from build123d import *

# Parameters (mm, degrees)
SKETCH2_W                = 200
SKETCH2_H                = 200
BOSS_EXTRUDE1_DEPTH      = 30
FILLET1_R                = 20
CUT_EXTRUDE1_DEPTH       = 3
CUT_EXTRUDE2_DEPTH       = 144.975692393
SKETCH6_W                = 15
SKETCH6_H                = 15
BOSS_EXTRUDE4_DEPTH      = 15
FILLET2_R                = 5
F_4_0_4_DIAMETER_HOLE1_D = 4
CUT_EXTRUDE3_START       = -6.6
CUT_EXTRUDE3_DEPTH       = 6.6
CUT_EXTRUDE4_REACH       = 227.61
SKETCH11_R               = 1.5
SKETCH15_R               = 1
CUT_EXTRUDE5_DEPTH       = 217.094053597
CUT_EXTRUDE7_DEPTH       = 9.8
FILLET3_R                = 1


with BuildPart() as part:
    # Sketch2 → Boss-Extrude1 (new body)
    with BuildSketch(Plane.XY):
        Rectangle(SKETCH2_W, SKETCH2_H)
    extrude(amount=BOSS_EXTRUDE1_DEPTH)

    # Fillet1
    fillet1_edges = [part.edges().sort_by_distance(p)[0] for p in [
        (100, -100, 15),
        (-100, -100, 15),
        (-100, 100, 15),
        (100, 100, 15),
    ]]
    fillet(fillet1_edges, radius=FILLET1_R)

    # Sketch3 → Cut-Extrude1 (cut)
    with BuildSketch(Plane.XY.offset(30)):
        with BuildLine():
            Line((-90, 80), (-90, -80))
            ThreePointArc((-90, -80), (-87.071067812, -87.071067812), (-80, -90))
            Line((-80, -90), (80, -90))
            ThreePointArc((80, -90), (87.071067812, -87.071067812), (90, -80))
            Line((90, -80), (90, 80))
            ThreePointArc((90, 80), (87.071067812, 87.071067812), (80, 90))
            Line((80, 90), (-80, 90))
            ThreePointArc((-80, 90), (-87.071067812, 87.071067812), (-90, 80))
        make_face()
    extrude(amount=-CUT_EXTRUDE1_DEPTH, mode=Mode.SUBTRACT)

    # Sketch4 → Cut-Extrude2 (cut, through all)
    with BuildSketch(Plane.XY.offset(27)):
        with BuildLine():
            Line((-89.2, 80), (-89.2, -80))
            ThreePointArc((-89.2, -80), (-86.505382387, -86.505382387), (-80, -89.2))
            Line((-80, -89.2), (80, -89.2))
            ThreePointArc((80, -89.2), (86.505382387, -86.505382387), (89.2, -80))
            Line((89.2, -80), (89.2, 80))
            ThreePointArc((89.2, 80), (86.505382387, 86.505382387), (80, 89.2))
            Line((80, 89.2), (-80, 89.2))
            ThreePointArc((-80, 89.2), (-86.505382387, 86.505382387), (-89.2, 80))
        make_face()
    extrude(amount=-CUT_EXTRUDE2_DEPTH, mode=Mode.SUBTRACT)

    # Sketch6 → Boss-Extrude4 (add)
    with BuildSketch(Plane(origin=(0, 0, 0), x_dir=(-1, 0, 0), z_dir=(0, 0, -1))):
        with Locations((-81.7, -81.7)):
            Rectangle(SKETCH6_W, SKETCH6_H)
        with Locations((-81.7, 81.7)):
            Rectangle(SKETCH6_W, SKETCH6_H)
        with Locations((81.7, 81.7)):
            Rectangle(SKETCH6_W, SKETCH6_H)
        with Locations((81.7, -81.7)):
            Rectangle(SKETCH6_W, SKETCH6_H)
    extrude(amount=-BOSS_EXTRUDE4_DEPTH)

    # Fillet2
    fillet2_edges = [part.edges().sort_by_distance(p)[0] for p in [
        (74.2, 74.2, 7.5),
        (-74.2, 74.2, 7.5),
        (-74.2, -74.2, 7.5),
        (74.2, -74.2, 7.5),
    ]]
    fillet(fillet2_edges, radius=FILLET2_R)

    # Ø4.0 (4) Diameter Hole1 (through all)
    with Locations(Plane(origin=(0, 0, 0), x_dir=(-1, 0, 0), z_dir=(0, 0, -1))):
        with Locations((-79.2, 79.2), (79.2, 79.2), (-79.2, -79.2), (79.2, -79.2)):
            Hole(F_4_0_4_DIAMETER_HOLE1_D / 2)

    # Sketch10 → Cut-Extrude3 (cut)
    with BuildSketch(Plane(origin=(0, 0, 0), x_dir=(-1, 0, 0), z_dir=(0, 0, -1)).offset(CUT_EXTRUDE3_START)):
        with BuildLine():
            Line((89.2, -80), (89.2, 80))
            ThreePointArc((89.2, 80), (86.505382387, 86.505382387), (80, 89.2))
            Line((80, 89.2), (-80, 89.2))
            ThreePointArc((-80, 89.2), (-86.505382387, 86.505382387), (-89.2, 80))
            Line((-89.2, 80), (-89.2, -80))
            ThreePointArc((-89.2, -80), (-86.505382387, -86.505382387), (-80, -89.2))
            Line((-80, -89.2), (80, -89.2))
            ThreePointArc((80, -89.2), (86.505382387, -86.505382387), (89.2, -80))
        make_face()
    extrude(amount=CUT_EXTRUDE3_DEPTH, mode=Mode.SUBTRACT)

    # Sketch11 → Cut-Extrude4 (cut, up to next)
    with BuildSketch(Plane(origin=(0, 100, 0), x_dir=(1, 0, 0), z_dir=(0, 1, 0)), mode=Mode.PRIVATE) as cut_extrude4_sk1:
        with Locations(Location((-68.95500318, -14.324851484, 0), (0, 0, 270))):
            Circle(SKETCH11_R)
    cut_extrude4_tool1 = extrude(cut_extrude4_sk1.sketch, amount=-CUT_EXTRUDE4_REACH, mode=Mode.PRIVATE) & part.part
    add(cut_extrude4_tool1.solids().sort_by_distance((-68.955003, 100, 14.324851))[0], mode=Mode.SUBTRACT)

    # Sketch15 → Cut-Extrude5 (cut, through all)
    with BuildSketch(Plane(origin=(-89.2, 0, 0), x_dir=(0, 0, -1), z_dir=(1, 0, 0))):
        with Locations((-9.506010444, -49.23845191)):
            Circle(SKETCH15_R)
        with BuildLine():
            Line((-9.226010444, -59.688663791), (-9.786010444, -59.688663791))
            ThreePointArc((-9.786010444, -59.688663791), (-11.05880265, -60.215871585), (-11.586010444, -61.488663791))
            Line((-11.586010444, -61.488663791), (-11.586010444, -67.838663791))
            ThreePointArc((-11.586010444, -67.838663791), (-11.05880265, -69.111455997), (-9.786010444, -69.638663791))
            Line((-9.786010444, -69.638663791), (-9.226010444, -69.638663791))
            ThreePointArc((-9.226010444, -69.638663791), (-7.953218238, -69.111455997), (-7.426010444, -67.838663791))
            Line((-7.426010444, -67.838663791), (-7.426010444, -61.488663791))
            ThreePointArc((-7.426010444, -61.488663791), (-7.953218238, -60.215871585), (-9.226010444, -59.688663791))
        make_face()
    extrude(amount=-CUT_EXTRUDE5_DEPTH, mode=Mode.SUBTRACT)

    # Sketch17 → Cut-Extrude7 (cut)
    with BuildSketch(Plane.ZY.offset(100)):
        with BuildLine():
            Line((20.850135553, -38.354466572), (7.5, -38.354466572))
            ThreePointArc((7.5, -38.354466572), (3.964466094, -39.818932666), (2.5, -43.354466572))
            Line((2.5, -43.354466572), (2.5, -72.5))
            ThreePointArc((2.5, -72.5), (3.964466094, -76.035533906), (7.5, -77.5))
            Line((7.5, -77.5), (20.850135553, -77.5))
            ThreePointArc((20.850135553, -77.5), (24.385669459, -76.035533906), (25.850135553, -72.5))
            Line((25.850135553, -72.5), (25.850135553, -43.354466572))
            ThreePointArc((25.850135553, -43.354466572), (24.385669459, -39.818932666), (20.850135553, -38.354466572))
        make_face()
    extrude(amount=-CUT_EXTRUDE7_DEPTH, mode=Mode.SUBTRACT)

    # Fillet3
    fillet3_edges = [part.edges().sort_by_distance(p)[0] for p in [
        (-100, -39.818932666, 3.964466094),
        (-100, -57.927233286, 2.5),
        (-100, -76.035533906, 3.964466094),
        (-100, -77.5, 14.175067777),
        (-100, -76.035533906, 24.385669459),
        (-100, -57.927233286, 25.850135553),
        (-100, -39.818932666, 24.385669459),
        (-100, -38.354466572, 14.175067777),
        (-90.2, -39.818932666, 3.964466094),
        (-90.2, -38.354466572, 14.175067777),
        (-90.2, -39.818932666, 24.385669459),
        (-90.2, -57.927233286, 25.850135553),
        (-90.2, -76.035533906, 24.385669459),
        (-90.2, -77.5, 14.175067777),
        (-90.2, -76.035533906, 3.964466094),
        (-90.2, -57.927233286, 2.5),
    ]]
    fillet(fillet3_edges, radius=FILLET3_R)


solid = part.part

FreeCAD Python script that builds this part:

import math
import FreeCAD as App
import Part
import Sketcher
from FreeCAD import Vector
Q = App.Units.Quantity


def edges_at(feature, points):
    """Names of the edges that pass closest to the given points."""
    edges = feature.Shape.Edges
    near = lambda p: min(range(len(edges)), key=lambda i: edges[i].distToShape(Part.Vertex(*p))[0])
    return sorted({f"Edge{near(p) + 1}" for p in points})


def add_polygon(sketch, points):
    """Adds a closed chain of lines whose ends are joined by coincident constraints."""
    first, n = sketch.GeometryCount, len(points)
    for a, b in zip(points, points[1:] + points[:1]):
        sketch.addGeometry(Part.LineSegment(App.Vector(*a, 0), App.Vector(*b, 0)), False)
    for i in range(n):
        sketch.addConstraint(Sketcher.Constraint("Coincident", first + i, 2, first + (i + 1) % n, 1))

doc = App.newDocument("Part")
body = doc.addObject("PartDesign::Body", "Body")

sketch1 = doc.addObject("Sketcher::SketchObject", "Sketch")
body.addObject(sketch1)
sketch1.AttachmentSupport = (doc.XY_Plane, [""])
sketch1.MapMode = "FlatFace"
add_polygon(sketch1, [(-100, 100), (-100, -100), (100, -100), (100, 100)])
sketch1.addConstraint([
    Sketcher.Constraint("Vertical", 0),
    Sketcher.Constraint("Horizontal", 1),
    Sketcher.Constraint("Vertical", 2),
    Sketcher.Constraint("Horizontal", 3),
    Sketcher.Constraint("Symmetric", 0, 2, 2, 2, -1, 1),
    Sketcher.Constraint("Equal", 3, 0),
    Sketcher.Constraint("DistanceX", 1, 1, 1, 2, Q("200 mm")),
])
pad1 = doc.addObject("PartDesign::Pad", "Pad")
body.addObject(pad1)
pad1.Profile = sketch1
pad1.Length = 30
doc.recompute()

fillet = doc.addObject("PartDesign::Fillet", "Fillet")
body.addObject(fillet)
fillet.Base = (pad1, edges_at(pad1, [
    (100, -100, 15),
    (-100, -100, 15),
    (-100, 100, 15),
    (100, 100, 15),
]))
fillet.Radius = 20

sketch2 = doc.addObject("Sketcher::SketchObject", "Sketch001")
body.addObject(sketch2)
sketch2.AttachmentSupport = (doc.XY_Plane, [""])
sketch2.MapMode = "FlatFace"
sketch2.AttachmentOffset = App.Placement(Vector(0, 0, 30), App.Rotation())
sketch2.addGeometry([
    Part.LineSegment(Vector(-90, 80, 0), Vector(-90, -80, 0)),
    Part.ArcOfCircle(Part.Circle(Vector(-80, -80, 0), Vector(0, 0, 1), 10), math.radians(180), math.radians(270)),
    Part.LineSegment(Vector(-80, -90, 0), Vector(80, -90, 0)),
    Part.ArcOfCircle(Part.Circle(Vector(80, -80, 0), Vector(0, 0, 1), 10), math.radians(-90), math.radians(0)),
    Part.LineSegment(Vector(90, -80, 0), Vector(90, 80, 0)),
    Part.ArcOfCircle(Part.Circle(Vector(80, 80, 0), Vector(0, 0, 1), 10), math.radians(0), math.radians(90)),
    Part.LineSegment(Vector(80, 90, 0), Vector(-80, 90, 0)),
    Part.ArcOfCircle(Part.Circle(Vector(-80, 80, 0), Vector(0, 0, 1), 10), math.radians(90), math.radians(180)),
], False)
sketch2.addConstraint([
    Sketcher.Constraint("Tangent", 0, 2, 1, 1),
    Sketcher.Constraint("Tangent", 1, 2, 2, 1),
    Sketcher.Constraint("Tangent", 2, 2, 3, 1),
    Sketcher.Constraint("Tangent", 3, 2, 4, 1),
    Sketcher.Constraint("Tangent", 4, 2, 5, 1),
    Sketcher.Constraint("Tangent", 5, 2, 6, 1),
    Sketcher.Constraint("Tangent", 6, 2, 7, 1),
    Sketcher.Constraint("Tangent", 7, 2, 0, 1),
    Sketcher.Constraint("Vertical", 0),
    Sketcher.Constraint("Horizontal", 2),
    Sketcher.Constraint("Vertical", 4),
    Sketcher.Constraint("Horizontal", 6),
    Sketcher.Constraint("Equal", 1, 3),
    Sketcher.Constraint("Equal", 3, 5),
    Sketcher.Constraint("Equal", 5, 7),
    Sketcher.Constraint("Symmetric", 1, 3, 5, 3, -1, 1),
    Sketcher.Constraint("Equal", 6, 0),
    Sketcher.Constraint("Radius", 1, Q("10 mm")),
    Sketcher.Constraint("DistanceX", 2, 1, 2, 2, Q("160 mm")),
])
pocket1 = doc.addObject("PartDesign::Pocket", "Pocket")
body.addObject(pocket1)
pocket1.Profile = sketch2
pocket1.Length = 3

sketch3 = doc.addObject("Sketcher::SketchObject", "Sketch002")
body.addObject(sketch3)
sketch3.AttachmentSupport = (doc.XY_Plane, [""])
sketch3.MapMode = "FlatFace"
sketch3.AttachmentOffset = App.Placement(Vector(0, 0, 27), App.Rotation())
sketch3.addGeometry([
    Part.LineSegment(Vector(-89, 80, 0), Vector(-89, -80, 0)),
    Part.ArcOfCircle(Part.Circle(Vector(-80, -80, 0), Vector(0, 0, 1), 9), math.radians(180), math.radians(270)),
    Part.LineSegment(Vector(-80, -89, 0), Vector(80, -89, 0)),
    Part.ArcOfCircle(Part.Circle(Vector(80, -80, 0), Vector(0, 0, 1), 9), math.radians(-90), math.radians(0)),
    Part.LineSegment(Vector(89, -80, 0), Vector(89, 80, 0)),
    Part.ArcOfCircle(Part.Circle(Vector(80, 80, 0), Vector(0, 0, 1), 9), math.radians(0), math.radians(90)),
    Part.LineSegment(Vector(80, 89, 0), Vector(-80, 89, 0)),
    Part.ArcOfCircle(Part.Circle(Vector(-80, 80, 0), Vector(0, 0, 1), 9), math.radians(90), math.radians(180)),
], False)
sketch3.addConstraint([
    Sketcher.Constraint("Tangent", 0, 2, 1, 1),
    Sketcher.Constraint("Tangent", 1, 2, 2, 1),
    Sketcher.Constraint("Tangent", 2, 2, 3, 1),
    Sketcher.Constraint("Tangent", 3, 2, 4, 1),
    Sketcher.Constraint("Tangent", 4, 2, 5, 1),
    Sketcher.Constraint("Tangent", 5, 2, 6, 1),
    Sketcher.Constraint("Tangent", 6, 2, 7, 1),
    Sketcher.Constraint("Tangent", 7, 2, 0, 1),
    Sketcher.Constraint("Vertical", 0),
    Sketcher.Constraint("Horizontal", 2),
    Sketcher.Constraint("Vertical", 4),
    Sketcher.Constraint("Horizontal", 6),
    Sketcher.Constraint("Equal", 1, 3),
    Sketcher.Constraint("Equal", 3, 5),
    Sketcher.Constraint("Equal", 5, 7),
    Sketcher.Constraint("Symmetric", 1, 3, 5, 3, -1, 1),
    Sketcher.Constraint("Equal", 6, 0),
    Sketcher.Constraint("Radius", 1, Q("9.2 mm")),
    Sketcher.Constraint("DistanceX", 2, 1, 2, 2, Q("160 mm")),
])
pocket2 = doc.addObject("PartDesign::Pocket", "Pocket001")
body.addObject(pocket2)
pocket2.Profile = sketch3
pocket2.Type = "ThroughAll"

sketch4 = doc.addObject("Sketcher::SketchObject", "Sketch003")
body.addObject(sketch4)
sketch4.AttachmentSupport = (doc.XY_Plane, [""])
sketch4.MapMode = "FlatFace"
add_polygon(sketch4, [(89, -74), (89, -89), (74, -89), (74, -74)])
add_polygon(sketch4, [(89, 89), (89, 74), (74, 74), (74, 89)])
add_polygon(sketch4, [(-74, 89), (-74, 74), (-89, 74), (-89, 89)])
add_polygon(sketch4, [(-74, -74), (-74, -89), (-89, -89), (-89, -74)])
sketch4.addConstraint([
    Sketcher.Constraint("Vertical", 0),
    Sketcher.Constraint("Horizontal", 1),
    Sketcher.Constraint("Vertical", 2),
    Sketcher.Constraint("Horizontal", 3),
    Sketcher.Constraint("Vertical", 4),
    Sketcher.Constraint("Horizontal", 5),
    Sketcher.Constraint("Vertical", 6),
    Sketcher.Constraint("Horizontal", 7),
    Sketcher.Constraint("Vertical", 8),
    Sketcher.Constraint("Horizontal", 9),
    Sketcher.Constraint("Vertical", 10),
    Sketcher.Constraint("Horizontal", 11),
    Sketcher.Constraint("Vertical", 12),
    Sketcher.Constraint("Horizontal", 13),
    Sketcher.Constraint("Vertical", 14),
    Sketcher.Constraint("Horizontal", 15),
    Sketcher.Constraint("Symmetric", 2, 2, 8, 2, -1, 1),
    Sketcher.Constraint("Symmetric", 0, 2, 10, 2, -1, 1),
    Sketcher.Constraint("Symmetric", 6, 2, 12, 2, -1, 1),
    Sketcher.Constraint("Symmetric", 4, 2, 14, 2, -1, 1),
    Sketcher.Constraint("Symmetric", 5, 2, 8, 2, -2),
    Sketcher.Constraint("Symmetric", 7, 2, 10, 2, -2),
    Sketcher.Constraint("Equal", 15, 0),
    Sketcher.Constraint("DistanceX", 1, 2, 1, 1, Q("15 mm")),
    Sketcher.Constraint("DistanceX", -1, 1, 0, 2, Q("89.2 mm")),
    Sketcher.Constraint("DistanceY", 0, 2, -1, 1, Q("89.2 mm")),
])
pad2 = doc.addObject("PartDesign::Pad", "Pad001")
body.addObject(pad2)
pad2.Profile = sketch4
pad2.Length = 15
doc.recompute()

fillet2 = doc.addObject("PartDesign::Fillet", "Fillet001")
body.addObject(fillet2)
fillet2.Base = (pad2, edges_at(pad2, [
    (74.2, 74.2, 7.5),
    (-74.2, 74.2, 7.5),
    (-74.2, -74.2, 7.5),
    (74.2, -74.2, 7.5),
]))
fillet2.Radius = 5

sketch5 = doc.addObject("Sketcher::SketchObject", "Sketch004")
body.addObject(sketch5)
sketch5.AttachmentSupport = (doc.XY_Plane, [""])
sketch5.MapMode = "FlatFace"
sketch5.addGeometry([
    Part.Circle(Vector(79.2, 79.2, 0), Vector(0, 0, 1), 2),
    Part.Circle(Vector(-79.2, 79.2, 0), Vector(0, 0, 1), 2),
    Part.Circle(Vector(79.2, -79.2, 0), Vector(0, 0, 1), 2),
    Part.Circle(Vector(-79.2, -79.2, 0), Vector(0, 0, 1), 2),
], False)
sketch5.addConstraint([
    Sketcher.Constraint("Equal", 0, 1),
    Sketcher.Constraint("Equal", 1, 2),
    Sketcher.Constraint("Equal", 2, 3),
    Sketcher.Constraint("Symmetric", 1, 3, 2, 3, -1, 1),
    Sketcher.Constraint("Symmetric", 0, 3, 3, 3, -1, 1),
    Sketcher.Constraint("Symmetric", 0, 3, 1, 3, -2),
    Sketcher.Constraint("Diameter", 0, Q("4 mm")),
    Sketcher.Constraint("DistanceX", -1, 1, 0, 3, Q("79.2 mm")),
    Sketcher.Constraint("DistanceY", -1, 1, 0, 3, Q("79.2 mm")),
])
doc.recompute()
hole = doc.addObject("PartDesign::Hole", "Hole")
body.addObject(hole)
hole.Profile = sketch5
hole.ThreadType = "None"
hole.Diameter = 4
hole.DepthType = "ThroughAll"
hole.Reversed = True

sketch6 = doc.addObject("Sketcher::SketchObject", "Sketch005")
body.addObject(sketch6)
sketch6.AttachmentSupport = (doc.XY_Plane, [""])
sketch6.MapMode = "FlatFace"
sketch6.AttachmentOffset = App.Placement(Vector(0, 0, 6.6), App.Rotation())
sketch6.addGeometry([
    Part.LineSegment(Vector(-89, -80, 0), Vector(-89, 80, 0)),
    Part.ArcOfCircle(Part.Circle(Vector(-80, 80, 0), Vector(0, 0, 1), 9), math.radians(90), math.radians(180)),
    Part.LineSegment(Vector(-80, 89, 0), Vector(80, 89, 0)),
    Part.ArcOfCircle(Part.Circle(Vector(80, 80, 0), Vector(0, 0, 1), 9), math.radians(0), math.radians(90)),
    Part.LineSegment(Vector(89, 80, 0), Vector(89, -80, 0)),
    Part.ArcOfCircle(Part.Circle(Vector(80, -80, 0), Vector(0, 0, 1), 9), math.radians(-90), math.radians(0)),
    Part.LineSegment(Vector(80, -89, 0), Vector(-80, -89, 0)),
    Part.ArcOfCircle(Part.Circle(Vector(-80, -80, 0), Vector(0, 0, 1), 9), math.radians(180), math.radians(270)),
], False)
sketch6.addConstraint([
    Sketcher.Constraint("Tangent", 0, 2, 1, 2),
    Sketcher.Constraint("Tangent", 1, 1, 2, 1),
    Sketcher.Constraint("Tangent", 2, 2, 3, 2),
    Sketcher.Constraint("Tangent", 3, 1, 4, 1),
    Sketcher.Constraint("Tangent", 4, 2, 5, 2),
    Sketcher.Constraint("Tangent", 5, 1, 6, 1),
    Sketcher.Constraint("Tangent", 6, 2, 7, 2),
    Sketcher.Constraint("Tangent", 7, 1, 0, 1),
    Sketcher.Constraint("Vertical", 0),
    Sketcher.Constraint("Horizontal", 2),
    Sketcher.Constraint("Vertical", 4),
    Sketcher.Constraint("Horizontal", 6),
    Sketcher.Constraint("Equal", 1, 3),
    Sketcher.Constraint("Equal", 3, 5),
    Sketcher.Constraint("Equal", 5, 7),
    Sketcher.Constraint("Symmetric", 1, 3, 5, 3, -1, 1),
    Sketcher.Constraint("Equal", 6, 0),
    Sketcher.Constraint("Radius", 1, Q("9.2 mm")),
    Sketcher.Constraint("DistanceX", 2, 1, 2, 2, Q("160 mm")),
])
pocket3 = doc.addObject("PartDesign::Pocket", "Pocket002")
body.addObject(pocket3)
pocket3.Profile = sketch6
pocket3.Length = 6.6

sketch7 = doc.addObject("Sketcher::SketchObject", "Sketch006")
body.addObject(sketch7)
sketch7.AttachmentSupport = (doc.XZ_Plane, [""])
sketch7.MapMode = "FlatFace"
sketch7.AttachmentOffset = App.Placement(Vector(0, 0, -100), App.Rotation())
sketch7.addGeometry(Part.Circle(Vector(-69, 14.3, 0), Vector(0, 0, 1), 1.5), False)
sketch7.addConstraint([
    Sketcher.Constraint("Diameter", 0, Q("3 mm")),
    Sketcher.Constraint("DistanceY", -1, 1, 0, 3, Q("14.324851 mm")),
    Sketcher.Constraint("DistanceX", 0, 3, -1, 1, Q("68.955003 mm")),
])
pocket4 = doc.addObject("PartDesign::Pocket", "Pocket003")
body.addObject(pocket4)
pocket4.Profile = sketch7
pocket4.Type = "UpToFirst"
pocket4.Reversed = True

sketch8 = doc.addObject("Sketcher::SketchObject", "Sketch007")
body.addObject(sketch8)
sketch8.AttachmentSupport = (doc.YZ_Plane, [""])
sketch8.MapMode = "FlatFace"
sketch8.AttachmentOffset = App.Placement(Vector(0, 0, -89.2), App.Rotation())
sketch8.addGeometry([
    Part.Circle(Vector(-49.2, 9.5, 0), Vector(0, 0, 1), 1),
    Part.LineSegment(Vector(-59.7, 9.2, 0), Vector(-59.7, 9.8, 0)),
    Part.ArcOfCircle(Part.Circle(Vector(-61.5, 9.8, 0), Vector(0, 0, 1), 1.8), math.radians(0), math.radians(90)),
    Part.LineSegment(Vector(-61.5, 11.6, 0), Vector(-67.8, 11.6, 0)),
    Part.ArcOfCircle(Part.Circle(Vector(-67.8, 9.8, 0), Vector(0, 0, 1), 1.8), math.radians(90), math.radians(180)),
    Part.LineSegment(Vector(-69.6, 9.8, 0), Vector(-69.6, 9.2, 0)),
    Part.ArcOfCircle(Part.Circle(Vector(-67.8, 9.2, 0), Vector(0, 0, 1), 1.8), math.radians(180), math.radians(270)),
    Part.LineSegment(Vector(-67.8, 7.4, 0), Vector(-61.5, 7.4, 0)),
    Part.ArcOfCircle(Part.Circle(Vector(-61.5, 9.2, 0), Vector(0, 0, 1), 1.8), math.radians(-90), math.radians(0)),
], False)
sketch8.addConstraint([
    Sketcher.Constraint("Tangent", 1, 2, 2, 1),
    Sketcher.Constraint("Tangent", 2, 2, 3, 1),
    Sketcher.Constraint("Tangent", 3, 2, 4, 1),
    Sketcher.Constraint("Tangent", 4, 2, 5, 1),
    Sketcher.Constraint("Tangent", 5, 2, 6, 1),
    Sketcher.Constraint("Tangent", 6, 2, 7, 1),
    Sketcher.Constraint("Tangent", 7, 2, 8, 1),
    Sketcher.Constraint("Tangent", 8, 2, 1, 1),
    Sketcher.Constraint("Vertical", 1),
    Sketcher.Constraint("Horizontal", 3),
    Sketcher.Constraint("Vertical", 5),
    Sketcher.Constraint("Horizontal", 7),
    Sketcher.Constraint("Equal", 2, 4),
    Sketcher.Constraint("Equal", 4, 6),
    Sketcher.Constraint("Equal", 6, 8),
    Sketcher.Constraint("Diameter", 0, Q("2 mm")),
    Sketcher.Constraint("Radius", 2, Q("1.8 mm")),
    Sketcher.Constraint("DistanceX", 3, 2, 3, 1, Q("6.35 mm")),
    Sketcher.Constraint("DistanceY", 1, 1, 1, 2, Q("0.56 mm")),
    Sketcher.Constraint("DistanceY", 0, 3, 2, 3, Q("0.28 mm")),
    Sketcher.Constraint("DistanceX", 0, 3, -1, 1, Q("49.238452 mm")),
    Sketcher.Constraint("DistanceY", -1, 1, 0, 3, Q("9.50601 mm")),
    Sketcher.Constraint("DistanceX", 2, 3, 0, 3, Q("12.250212 mm")),
])
pocket5 = doc.addObject("PartDesign::Pocket", "Pocket004")
body.addObject(pocket5)
pocket5.Profile = sketch8
pocket5.Type = "ThroughAll"

sketch9 = doc.addObject("Sketcher::SketchObject", "Sketch008")
body.addObject(sketch9)
sketch9.AttachmentSupport = (doc.YZ_Plane, [""])
sketch9.MapMode = "FlatFace"
sketch9.AttachmentOffset = App.Placement(Vector(0, 0, -100), App.Rotation())
sketch9.addGeometry([
    Part.LineSegment(Vector(-38, 21, 0), Vector(-38, 8, 0)),
    Part.ArcOfCircle(Part.Circle(Vector(-43, 8, 0), Vector(0, 0, 1), 5), math.radians(-90), math.radians(0)),
    Part.LineSegment(Vector(-43, 2, 0), Vector(-72, 2, 0)),
    Part.ArcOfCircle(Part.Circle(Vector(-72, 8, 0), Vector(0, 0, 1), 5), math.radians(180), math.radians(270)),
    Part.LineSegment(Vector(-78, 8, 0), Vector(-78, 21, 0)),
    Part.ArcOfCircle(Part.Circle(Vector(-72, 21, 0), Vector(0, 0, 1), 5), math.radians(90), math.radians(180)),
    Part.LineSegment(Vector(-72, 26, 0), Vector(-43, 26, 0)),
    Part.ArcOfCircle(Part.Circle(Vector(-43, 21, 0), Vector(0, 0, 1), 5), math.radians(0), math.radians(90)),
], False)
sketch9.addConstraint([
    Sketcher.Constraint("Tangent", 0, 2, 1, 2),
    Sketcher.Constraint("Tangent", 1, 1, 2, 1),
    Sketcher.Constraint("Tangent", 2, 2, 3, 2),
    Sketcher.Constraint("Tangent", 3, 1, 4, 1),
    Sketcher.Constraint("Tangent", 4, 2, 5, 2),
    Sketcher.Constraint("Tangent", 5, 1, 6, 1),
    Sketcher.Constraint("Tangent", 6, 2, 7, 2),
    Sketcher.Constraint("Tangent", 7, 1, 0, 1),
    Sketcher.Constraint("Vertical", 0),
    Sketcher.Constraint("Horizontal", 2),
    Sketcher.Constraint("Vertical", 4),
    Sketcher.Constraint("Horizontal", 6),
    Sketcher.Constraint("Equal", 1, 3),
    Sketcher.Constraint("Equal", 3, 5),
    Sketcher.Constraint("Equal", 5, 7),
    Sketcher.Constraint("Radius", 1, Q("5 mm")),
    Sketcher.Constraint("DistanceY", -1, 1, 1, 3, Q("7.5 mm")),
    Sketcher.Constraint("DistanceX", 3, 3, -1, 1, Q("72.5 mm")),
    Sketcher.Constraint("DistanceX", 2, 2, 2, 1, Q("29.145533 mm")),
    Sketcher.Constraint("DistanceY", 0, 2, 0, 1, Q("13.350136 mm")),
])
pocket6 = doc.addObject("PartDesign::Pocket", "Pocket005")
body.addObject(pocket6)
pocket6.Profile = sketch9
pocket6.Length = 9.8
pocket6.Reversed = True
doc.recompute()

fillet3 = doc.addObject("PartDesign::Fillet", "Fillet002")
body.addObject(fillet3)
fillet3.Base = (pocket6, edges_at(pocket6, [
    (-100, -39.819, 3.964),
    (-100, -57.927, 2.5),
    (-100, -76.036, 3.964),
    (-100, -77.5, 14.175),
    (-100, -76.036, 24.386),
    (-100, -57.927, 25.85),
    (-100, -39.819, 24.386),
    (-100, -38.354, 14.175),
    (-90.2, -39.819, 3.964),
    (-90.2, -38.354, 14.175),
    (-90.2, -39.819, 24.386),
    (-90.2, -57.927, 25.85),
    (-90.2, -76.036, 24.386),
    (-90.2, -77.5, 14.175),
    (-90.2, -76.036, 3.964),
    (-90.2, -57.927, 2.5),
]))
fillet3.Radius = 1

doc.recompute()
